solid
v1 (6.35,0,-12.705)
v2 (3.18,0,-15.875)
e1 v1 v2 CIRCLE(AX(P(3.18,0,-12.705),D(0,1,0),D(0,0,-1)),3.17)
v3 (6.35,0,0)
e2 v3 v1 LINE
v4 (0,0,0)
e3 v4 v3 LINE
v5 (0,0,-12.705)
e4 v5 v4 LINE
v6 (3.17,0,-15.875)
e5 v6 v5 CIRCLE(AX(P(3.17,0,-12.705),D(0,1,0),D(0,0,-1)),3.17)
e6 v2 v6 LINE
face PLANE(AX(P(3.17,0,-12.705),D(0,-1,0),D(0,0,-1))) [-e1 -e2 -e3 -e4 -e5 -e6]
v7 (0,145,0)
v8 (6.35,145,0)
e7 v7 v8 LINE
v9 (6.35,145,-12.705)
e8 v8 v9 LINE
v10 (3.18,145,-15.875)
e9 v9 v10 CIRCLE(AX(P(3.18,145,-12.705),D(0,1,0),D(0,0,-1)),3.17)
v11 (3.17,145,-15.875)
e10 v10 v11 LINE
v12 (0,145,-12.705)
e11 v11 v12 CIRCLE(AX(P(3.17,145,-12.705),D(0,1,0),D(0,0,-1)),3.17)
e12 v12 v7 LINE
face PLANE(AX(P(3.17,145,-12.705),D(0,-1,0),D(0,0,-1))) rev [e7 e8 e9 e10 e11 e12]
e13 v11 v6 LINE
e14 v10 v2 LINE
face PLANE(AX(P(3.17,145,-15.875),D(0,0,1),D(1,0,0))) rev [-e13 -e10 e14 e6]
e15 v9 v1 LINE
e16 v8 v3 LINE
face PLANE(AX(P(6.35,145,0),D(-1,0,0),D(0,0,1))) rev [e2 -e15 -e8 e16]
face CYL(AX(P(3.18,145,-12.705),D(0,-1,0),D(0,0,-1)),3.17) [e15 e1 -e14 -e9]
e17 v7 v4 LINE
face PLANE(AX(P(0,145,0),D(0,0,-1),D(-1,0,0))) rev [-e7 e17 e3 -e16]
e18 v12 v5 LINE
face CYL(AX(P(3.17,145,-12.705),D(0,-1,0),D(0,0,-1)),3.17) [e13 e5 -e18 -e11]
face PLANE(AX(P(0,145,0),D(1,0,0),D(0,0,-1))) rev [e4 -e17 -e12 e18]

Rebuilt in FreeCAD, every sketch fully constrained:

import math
import FreeCAD as App
import Part
import Sketcher

doc = App.newDocument("Part")
body = doc.addObject("PartDesign::Body", "Body")

# Sketch on XZ plane
sketch1 = doc.addObject("Sketcher::SketchObject", "Sketch")
body.addObject(sketch1)
sketch1.AttachmentSupport = (doc.XZ_Plane, [""])
sketch1.MapMode = "FlatFace"
sketch1.addGeometry([
    Part.LineSegment(App.Vector(0, 0, 0), App.Vector(6.35, 0, 0)),  # 0
    Part.LineSegment(App.Vector(6.35, 0, 0), App.Vector(6.35, -12.705, 0)),  # 1
    Part.ArcOfCircle(Part.Circle(App.Vector(3.18, -12.705, 0), App.Vector(0, 0, 1), 3.17), math.radians(-90), math.radians(0)),  # 2
    Part.LineSegment(App.Vector(3.18, -15.875, 0), App.Vector(3.17, -15.875, 0)),  # 3
    Part.ArcOfCircle(Part.Circle(App.Vector(3.17, -12.705, 0), App.Vector(0, 0, 1), 3.17), math.radians(-180), math.radians(-90)),  # 4
    Part.LineSegment(App.Vector(0, -12.705, 0), App.Vector(0, 0, 0)),  # 5
], False)
sketch1.addConstraint([
    Sketcher.Constraint("Coincident", 0, 2, 1, 1),
    Sketcher.Constraint("Tangent", 1, 2, 2, 2),
    Sketcher.Constraint("Tangent", 2, 1, 3, 1),
    Sketcher.Constraint("Tangent", 3, 2, 4, 2),
    Sketcher.Constraint("Tangent", 4, 1, 5, 1),
    Sketcher.Constraint("Coincident", 5, 2, 0, 1),
    Sketcher.Constraint("Horizontal", 0),
    Sketcher.Constraint("Vertical", 1),
    Sketcher.Constraint("Vertical", 5),
    Sketcher.Constraint("Coincident", 5, 2, -1, 1),
    Sketcher.Constraint("Equal", 2, 4),
    Sketcher.Constraint("Vertical", 4, 3, 3, 2),
    Sketcher.Constraint("Radius", 2, 3.17),
    Sketcher.Constraint("DistanceX", 0, 1, 0, 2, 6.35),
    Sketcher.Constraint("DistanceY", 1, 2, 1, 1, 12.705),
])
pad1 = doc.addObject("PartDesign::Pad", "Pad")
body.addObject(pad1)
pad1.Profile = sketch1
pad1.Length = 145
pad1.Reversed = True

doc.recompute()
